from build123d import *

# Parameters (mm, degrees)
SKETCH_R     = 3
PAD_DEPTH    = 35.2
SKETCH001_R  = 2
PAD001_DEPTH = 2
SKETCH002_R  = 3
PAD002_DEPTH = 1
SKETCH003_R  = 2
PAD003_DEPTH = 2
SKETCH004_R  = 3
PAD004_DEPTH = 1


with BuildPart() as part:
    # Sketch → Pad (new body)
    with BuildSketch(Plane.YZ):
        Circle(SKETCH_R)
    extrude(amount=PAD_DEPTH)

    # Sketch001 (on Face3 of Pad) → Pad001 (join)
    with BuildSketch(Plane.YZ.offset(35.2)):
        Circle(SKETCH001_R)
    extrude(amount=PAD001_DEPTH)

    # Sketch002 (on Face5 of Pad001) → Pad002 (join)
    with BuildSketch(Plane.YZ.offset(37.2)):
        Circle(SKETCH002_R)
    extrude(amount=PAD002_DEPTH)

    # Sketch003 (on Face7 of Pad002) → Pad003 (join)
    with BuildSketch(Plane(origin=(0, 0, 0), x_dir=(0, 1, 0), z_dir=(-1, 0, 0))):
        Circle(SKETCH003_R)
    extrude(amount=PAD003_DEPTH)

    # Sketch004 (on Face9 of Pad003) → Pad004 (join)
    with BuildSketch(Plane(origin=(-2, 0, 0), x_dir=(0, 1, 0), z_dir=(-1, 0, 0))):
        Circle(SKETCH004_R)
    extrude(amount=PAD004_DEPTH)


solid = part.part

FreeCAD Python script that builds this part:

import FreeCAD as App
import Part
import Sketcher
Q = App.Units.Quantity

doc = App.newDocument("Part")
body = doc.addObject("PartDesign::Body", "Body")

# Sketch on YZ plane
sketch1 = doc.addObject("Sketcher::SketchObject", "Sketch")
body.addObject(sketch1)
sketch1.AttachmentSupport = (doc.YZ_Plane, [""])
sketch1.MapMode = "FlatFace"
sketch1.addGeometry(Part.Circle(App.Vector(0, 0, 0), App.Vector(0, 0, 1), 3), False)
sketch1.addConstraint([
    Sketcher.Constraint("Coincident", 0, 3, -1, 1),
    Sketcher.Constraint("Diameter", 0, Q("6 mm")),
])
pad1 = doc.addObject("PartDesign::Pad", "Pad")
body.addObject(pad1)
pad1.Profile = sketch1
pad1.Length = 35.2

# Sketch on YZ plane
sketch2 = doc.addObject("Sketcher::SketchObject", "Sketch001")
body.addObject(sketch2)
sketch2.AttachmentSupport = (doc.YZ_Plane, [""])
sketch2.MapMode = "FlatFace"
sketch2.AttachmentOffset = App.Placement(App.Vector(0, 0, 35.2), App.Rotation())
sketch2.addGeometry(Part.Circle(App.Vector(0, 0, 0), App.Vector(0, 0, 1), 2), False)
sketch2.addConstraint([
    Sketcher.Constraint("Coincident", 0, 3, -1, 1),
    Sketcher.Constraint("Diameter", 0, Q("4 mm")),
])
pad2 = doc.addObject("PartDesign::Pad", "Pad001")
body.addObject(pad2)
pad2.Profile = sketch2
pad2.Length = 2

# Sketch on YZ plane
sketch3 = doc.addObject("Sketcher::SketchObject", "Sketch002")
body.addObject(sketch3)
sketch3.AttachmentSupport = (doc.YZ_Plane, [""])
sketch3.MapMode = "FlatFace"
sketch3.AttachmentOffset = App.Placement(App.Vector(0, 0, 37.2), App.Rotation())
sketch3.addGeometry(Part.Circle(App.Vector(0, 0, 0), App.Vector(0, 0, 1), 3), False)
sketch3.addConstraint([
    Sketcher.Constraint("Coincident", 0, 3, -1, 1),
    Sketcher.Constraint("Diameter", 0, Q("6 mm")),
])
pad3 = doc.addObject("PartDesign::Pad", "Pad002")
body.addObject(pad3)
pad3.Profile = sketch3
pad3.Length = 1

# Sketch on YZ plane
sketch4 = doc.addObject("Sketcher::SketchObject", "Sketch003")
body.addObject(sketch4)
sketch4.AttachmentSupport = (doc.YZ_Plane, [""])
sketch4.MapMode = "FlatFace"
sketch4.addGeometry(Part.Circle(App.Vector(0, 0, 0), App.Vector(0, 0, 1), 2), False)
sketch4.addConstraint([
    Sketcher.Constraint("Coincident", 0, 3, -1, 1),
    Sketcher.Constraint("Diameter", 0, Q("4 mm")),
])
pad4 = doc.addObject("PartDesign::Pad", "Pad003")
body.addObject(pad4)
pad4.Profile = sketch4
pad4.Length = 2
pad4.Reversed = True

# Sketch on YZ plane
sketch5 = doc.addObject("Sketcher::SketchObject", "Sketch004")
body.addObject(sketch5)
sketch5.AttachmentSupport = (doc.YZ_Plane, [""])
sketch5.MapMode = "FlatFace"
sketch5.AttachmentOffset = App.Placement(App.Vector(0, 0, -2), App.Rotation())
sketch5.addGeometry(Part.Circle(App.Vector(0, 0, 0), App.Vector(0, 0, 1), 3), False)
sketch5.addConstraint([
    Sketcher.Constraint("Coincident", 0, 3, -1, 1),
    Sketcher.Constraint("Diameter", 0, Q("6 mm")),
])
pad5 = doc.addObject("PartDesign::Pad", "Pad004")
body.addObject(pad5)
pad5.Profile = sketch5
pad5.Length = 1
pad5.Reversed = True

doc.recompute()
